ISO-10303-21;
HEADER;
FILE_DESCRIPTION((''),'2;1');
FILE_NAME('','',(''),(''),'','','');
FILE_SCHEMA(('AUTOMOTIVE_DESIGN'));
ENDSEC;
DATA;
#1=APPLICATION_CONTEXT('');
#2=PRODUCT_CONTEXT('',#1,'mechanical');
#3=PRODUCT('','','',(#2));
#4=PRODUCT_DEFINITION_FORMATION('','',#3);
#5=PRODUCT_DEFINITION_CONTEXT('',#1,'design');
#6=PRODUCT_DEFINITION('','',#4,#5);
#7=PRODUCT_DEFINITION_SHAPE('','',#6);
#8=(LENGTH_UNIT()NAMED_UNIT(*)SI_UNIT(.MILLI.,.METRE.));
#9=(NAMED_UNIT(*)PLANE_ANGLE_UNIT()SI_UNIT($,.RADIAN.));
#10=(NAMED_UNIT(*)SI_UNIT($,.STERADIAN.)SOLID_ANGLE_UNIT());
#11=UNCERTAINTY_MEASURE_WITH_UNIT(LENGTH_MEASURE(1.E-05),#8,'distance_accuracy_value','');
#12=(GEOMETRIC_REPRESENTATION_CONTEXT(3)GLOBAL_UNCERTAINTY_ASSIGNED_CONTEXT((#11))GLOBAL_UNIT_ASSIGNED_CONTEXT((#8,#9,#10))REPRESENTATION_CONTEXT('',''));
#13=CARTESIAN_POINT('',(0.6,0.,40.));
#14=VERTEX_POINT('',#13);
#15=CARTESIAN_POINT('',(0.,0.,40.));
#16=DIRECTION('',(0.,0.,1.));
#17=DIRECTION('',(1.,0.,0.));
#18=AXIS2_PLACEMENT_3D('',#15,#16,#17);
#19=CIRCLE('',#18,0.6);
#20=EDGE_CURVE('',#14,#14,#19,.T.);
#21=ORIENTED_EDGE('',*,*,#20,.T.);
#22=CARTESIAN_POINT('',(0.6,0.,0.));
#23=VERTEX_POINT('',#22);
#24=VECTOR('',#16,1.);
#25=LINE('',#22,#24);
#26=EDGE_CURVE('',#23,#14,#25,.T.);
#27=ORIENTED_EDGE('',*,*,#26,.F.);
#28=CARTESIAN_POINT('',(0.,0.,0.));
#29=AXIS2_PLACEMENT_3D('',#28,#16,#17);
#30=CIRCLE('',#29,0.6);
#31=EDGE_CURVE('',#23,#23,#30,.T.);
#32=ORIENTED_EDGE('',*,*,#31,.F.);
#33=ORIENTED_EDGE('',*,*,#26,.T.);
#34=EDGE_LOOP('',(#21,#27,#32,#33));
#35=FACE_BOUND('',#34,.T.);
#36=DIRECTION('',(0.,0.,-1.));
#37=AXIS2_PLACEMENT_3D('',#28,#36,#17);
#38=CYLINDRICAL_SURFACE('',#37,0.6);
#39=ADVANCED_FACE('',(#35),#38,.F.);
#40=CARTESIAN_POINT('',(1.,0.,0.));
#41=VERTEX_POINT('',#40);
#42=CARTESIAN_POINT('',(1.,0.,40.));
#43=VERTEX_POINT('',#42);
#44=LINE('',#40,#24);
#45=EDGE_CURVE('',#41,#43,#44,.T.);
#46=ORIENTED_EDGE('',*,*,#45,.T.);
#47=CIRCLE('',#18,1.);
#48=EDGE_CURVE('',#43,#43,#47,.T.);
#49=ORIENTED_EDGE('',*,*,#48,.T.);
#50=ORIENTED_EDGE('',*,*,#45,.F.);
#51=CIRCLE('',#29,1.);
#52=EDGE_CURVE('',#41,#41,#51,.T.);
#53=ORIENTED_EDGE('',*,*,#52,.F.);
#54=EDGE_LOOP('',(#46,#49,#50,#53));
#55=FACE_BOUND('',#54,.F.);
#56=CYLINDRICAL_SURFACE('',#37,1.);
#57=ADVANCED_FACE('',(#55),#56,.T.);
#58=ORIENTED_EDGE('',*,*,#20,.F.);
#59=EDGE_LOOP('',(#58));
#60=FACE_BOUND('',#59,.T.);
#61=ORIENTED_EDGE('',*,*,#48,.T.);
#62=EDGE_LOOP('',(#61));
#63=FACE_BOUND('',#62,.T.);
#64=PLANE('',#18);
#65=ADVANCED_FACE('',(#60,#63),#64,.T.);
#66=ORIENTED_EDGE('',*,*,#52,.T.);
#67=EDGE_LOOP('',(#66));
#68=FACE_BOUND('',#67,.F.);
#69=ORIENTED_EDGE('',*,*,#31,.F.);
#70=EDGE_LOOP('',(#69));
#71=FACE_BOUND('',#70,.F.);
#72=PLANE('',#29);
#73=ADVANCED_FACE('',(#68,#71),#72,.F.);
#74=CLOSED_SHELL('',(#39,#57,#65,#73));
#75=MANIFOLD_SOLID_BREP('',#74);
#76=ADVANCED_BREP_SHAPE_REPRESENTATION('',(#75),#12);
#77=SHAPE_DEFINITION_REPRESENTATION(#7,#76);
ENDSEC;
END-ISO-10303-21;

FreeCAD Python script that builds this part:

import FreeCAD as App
import Part
import Sketcher
from FreeCAD import Vector

doc = App.newDocument("Part")
params = doc.addObject("Spreadsheet::Sheet", "Params")
for row, (alias, value) in enumerate([
    ("sketch1_diameter", "2 mm"),
    ("sketch1_diameter2", "1.2 mm"),
    ("pad1_length", "40 mm"),
], start=1):
    params.set(f"A{row}", alias)
    params.set(f"B{row}", "=" + value)
    params.setAlias(f"B{row}", alias)

body = doc.addObject("PartDesign::Body", "Body")

# Sketch on XY plane
sketch1 = body.newObject("Sketcher::SketchObject", "Sketch")
sketch1.AttachmentSupport = (doc.getObject("XY_Plane"), [""])
sketch1.MapMode = "FlatFace"
sketch1.addGeometry([
    Part.Circle(Vector(0, 0, 0), Vector(0, 0, 1), 1),
    Part.Circle(Vector(0, 0, 0), Vector(0, 0, 1), 0.6),
], False)
sketch1.addConstraint([
    Sketcher.Constraint("Coincident", 0, 3, -1, 1),
    Sketcher.Constraint("Coincident", 1, 3, -1, 1),
    Sketcher.Constraint("Diameter", 0, 2.0),
    Sketcher.Constraint("Diameter", 1, 1.2),
])
sketch1.setExpression("Constraints[2]", "Params.sketch1_diameter")
sketch1.setExpression("Constraints[3]", "Params.sketch1_diameter2")
pad1 = body.newObject("PartDesign::Pad", "Pad")
pad1.Profile = sketch1
pad1.setExpression("Length", "Params.pad1_length")

doc.recompute()
